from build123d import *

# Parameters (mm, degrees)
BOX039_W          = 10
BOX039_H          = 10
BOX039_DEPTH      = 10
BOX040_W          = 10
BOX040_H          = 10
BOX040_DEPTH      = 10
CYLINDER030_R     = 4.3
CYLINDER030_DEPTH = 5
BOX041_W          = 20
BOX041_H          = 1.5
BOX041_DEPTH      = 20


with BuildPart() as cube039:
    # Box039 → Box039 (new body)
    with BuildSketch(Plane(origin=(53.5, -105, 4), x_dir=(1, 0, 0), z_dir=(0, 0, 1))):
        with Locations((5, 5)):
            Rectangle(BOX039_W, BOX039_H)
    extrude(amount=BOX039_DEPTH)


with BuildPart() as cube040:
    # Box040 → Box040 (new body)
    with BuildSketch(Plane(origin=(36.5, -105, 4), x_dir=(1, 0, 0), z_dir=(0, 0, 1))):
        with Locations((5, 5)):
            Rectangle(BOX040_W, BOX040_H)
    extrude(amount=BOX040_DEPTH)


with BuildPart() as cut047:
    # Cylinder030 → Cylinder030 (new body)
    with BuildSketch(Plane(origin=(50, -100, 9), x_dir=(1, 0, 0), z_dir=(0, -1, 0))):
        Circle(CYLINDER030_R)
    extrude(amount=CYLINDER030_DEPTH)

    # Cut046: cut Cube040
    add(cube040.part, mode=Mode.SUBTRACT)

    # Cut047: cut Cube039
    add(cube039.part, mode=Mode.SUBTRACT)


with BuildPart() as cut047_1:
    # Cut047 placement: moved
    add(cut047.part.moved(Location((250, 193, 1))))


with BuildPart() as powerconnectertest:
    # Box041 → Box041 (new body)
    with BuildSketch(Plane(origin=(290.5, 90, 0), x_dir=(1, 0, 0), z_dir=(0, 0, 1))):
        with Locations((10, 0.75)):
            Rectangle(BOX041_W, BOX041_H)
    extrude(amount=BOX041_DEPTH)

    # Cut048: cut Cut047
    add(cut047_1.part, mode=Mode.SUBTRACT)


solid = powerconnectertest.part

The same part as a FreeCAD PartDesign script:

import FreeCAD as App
import Part
import Sketcher

V = App.Vector


def add_polygon(sketch, points):
    """Adds a closed chain of lines whose ends are joined by coincident constraints."""
    first, n = sketch.GeometryCount, len(points)
    for a, b in zip(points, points[1:] + points[:1]):
        sketch.addGeometry(Part.LineSegment(App.Vector(*a, 0), App.Vector(*b, 0)), False)
    for i in range(n):
        sketch.addConstraint(Sketcher.Constraint("Coincident", first + i, 2, first + (i + 1) % n, 1))

doc = App.newDocument("Part")
body = doc.addObject("PartDesign::Body", "Body")

sketch1 = body.newObject("Sketcher::SketchObject", "Sketch")
sketch1.AttachmentSupport = (doc.getObject("XY_Plane"), [""])
sketch1.MapMode = "FlatFace"
sketch1.AttachmentOffset = App.Placement(V(0, 0, 4), App.Rotation())
add_polygon(sketch1, [(53.5, -95), (53.5, -105), (63.5, -105), (63.5, -95)])
sketch1.addConstraint([
    Sketcher.Constraint("Vertical", 0),
    Sketcher.Constraint("Horizontal", 1),
    Sketcher.Constraint("Vertical", 2),
    Sketcher.Constraint("Horizontal", 3),
    Sketcher.Constraint("Equal", 3, 0),
    Sketcher.Constraint("DistanceX", 1, 1, 1, 2, 10.0),
    Sketcher.Constraint("DistanceY", 0, 2, -1, 1, 105.0),
    Sketcher.Constraint("DistanceX", -1, 1, 0, 2, 53.5),
])
pad1 = body.newObject("PartDesign::Pad", "Pad")
pad1.Profile = sketch1
pad1.Length = 10
body2 = doc.addObject("PartDesign::Body", "Body001")

sketch2 = body2.newObject("Sketcher::SketchObject", "Sketch001")
sketch2.AttachmentSupport = (doc.getObject("XY_Plane001"), [""])
sketch2.MapMode = "FlatFace"
sketch2.AttachmentOffset = App.Placement(V(0, 0, 4), App.Rotation())
add_polygon(sketch2, [(36.5, -95), (36.5, -105), (46.5, -105), (46.5, -95)])
sketch2.addConstraint([
    Sketcher.Constraint("Vertical", 0),
    Sketcher.Constraint("Horizontal", 1),
    Sketcher.Constraint("Vertical", 2),
    Sketcher.Constraint("Horizontal", 3),
    Sketcher.Constraint("Equal", 3, 0),
    Sketcher.Constraint("DistanceX", 1, 1, 1, 2, 10.0),
    Sketcher.Constraint("DistanceY", 0, 2, -1, 1, 105.0),
    Sketcher.Constraint("DistanceX", -1, 1, 0, 2, 36.5),
])
pad2 = body2.newObject("PartDesign::Pad", "Pad001")
pad2.Profile = sketch2
pad2.Length = 10
body3 = doc.addObject("PartDesign::Body", "Body002")

sketch3 = body3.newObject("Sketcher::SketchObject", "Sketch002")
sketch3.AttachmentSupport = (doc.getObject("XZ_Plane002"), [""])
sketch3.MapMode = "FlatFace"
sketch3.AttachmentOffset = App.Placement(V(0, 0, 100), App.Rotation())
sketch3.addGeometry(Part.Circle(V(50, 9, 0), V(0, 0, 1), 4.3), False)
sketch3.addConstraint([
    Sketcher.Constraint("Diameter", 0, 8.6),
    Sketcher.Constraint("DistanceX", -1, 1, 0, 3, 50.0),
    Sketcher.Constraint("DistanceY", -1, 1, 0, 3, 9.0),
])
pad3 = body3.newObject("PartDesign::Pad", "Pad002")
pad3.Profile = sketch3
pad3.Length = 5
doc.recompute()

boolean = body3.newObject("PartDesign::Boolean", "Boolean")
boolean.Type = "Cut"
boolean.addObjects([body2])
doc.recompute()

boolean2 = body3.newObject("PartDesign::Boolean", "Boolean001")
boolean2.Type = "Cut"
boolean2.addObjects([body])
body4 = doc.addObject("PartDesign::Body", "Body003")
doc.recompute()

body3.Placement = App.Placement(V(250, 193, 1), App.Rotation(V(0, 0, 1), 0))
boolean3 = body4.newObject("PartDesign::Boolean", "Boolean002")
boolean3.Type = "Fuse"
boolean3.addObjects([body3])
body5 = doc.addObject("PartDesign::Body", "Body004")

sketch4 = body5.newObject("Sketcher::SketchObject", "Sketch003")
sketch4.AttachmentSupport = (doc.getObject("XY_Plane004"), [""])
sketch4.MapMode = "FlatFace"
add_polygon(sketch4, [(290.5, 91.5), (290.5, 90), (310.5, 90), (310.5, 91.5)])
sketch4.addConstraint([
    Sketcher.Constraint("Vertical", 0),
    Sketcher.Constraint("Horizontal", 1),
    Sketcher.Constraint("Vertical", 2),
    Sketcher.Constraint("Horizontal", 3),
    Sketcher.Constraint("DistanceX", 1, 1, 1, 2, 20.0),
    Sketcher.Constraint("DistanceY", 0, 2, 0, 1, 1.5),
    Sketcher.Constraint("DistanceY", -1, 1, 0, 2, 90.0),
    Sketcher.Constraint("DistanceX", -1, 1, 0, 2, 290.5),
])
pad4 = body5.newObject("PartDesign::Pad", "Pad003")
pad4.Profile = sketch4
pad4.Length = 20
doc.recompute()

boolean4 = body5.newObject("PartDesign::Boolean", "Boolean003")
boolean4.Type = "Cut"
boolean4.addObjects([body4])

doc.recompute()
